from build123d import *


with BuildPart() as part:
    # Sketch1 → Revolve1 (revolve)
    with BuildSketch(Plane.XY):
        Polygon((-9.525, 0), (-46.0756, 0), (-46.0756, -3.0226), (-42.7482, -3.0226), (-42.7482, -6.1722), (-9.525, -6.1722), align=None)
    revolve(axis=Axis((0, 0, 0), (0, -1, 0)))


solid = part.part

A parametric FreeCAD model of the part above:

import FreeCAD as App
import Part
import Sketcher
from FreeCAD import Vector
Q = App.Units.Quantity

doc = App.newDocument("Part")
body = doc.addObject("PartDesign::Body", "Body")

sketch1 = body.newObject("Sketcher::SketchObject", "Sketch")
sketch1.AttachmentSupport = (doc.getObject("XY_Plane"), [""])
sketch1.MapMode = "FlatFace"
sketch1.addGeometry([
    Part.LineSegment(Vector(-9.5, 0, 0), Vector(-46.1, 0, 0)),
    Part.LineSegment(Vector(-46.1, 0, 0), Vector(-46.1, -3, 0)),
    Part.LineSegment(Vector(-46.1, -3, 0), Vector(-42.7, -3, 0)),
    Part.LineSegment(Vector(-42.7, -3, 0), Vector(-42.7, -6.2, 0)),
    Part.LineSegment(Vector(-42.7, -6.2, 0), Vector(-9.5, -6.2, 0)),
    Part.LineSegment(Vector(-9.5, -6.2, 0), Vector(-9.5, 0, 0)),
], False)
sketch1.addConstraint([
    Sketcher.Constraint("Coincident", 0, 2, 1, 1),
    Sketcher.Constraint("Coincident", 1, 2, 2, 1),
    Sketcher.Constraint("Coincident", 2, 2, 3, 1),
    Sketcher.Constraint("Coincident", 3, 2, 4, 1),
    Sketcher.Constraint("Coincident", 4, 2, 5, 1),
    Sketcher.Constraint("Coincident", 5, 2, 0, 1),
    Sketcher.Constraint("Horizontal", 0),
    Sketcher.Constraint("Vertical", 1),
    Sketcher.Constraint("Horizontal", 2),
    Sketcher.Constraint("Vertical", 3),
    Sketcher.Constraint("Horizontal", 4),
    Sketcher.Constraint("Vertical", 5),
    Sketcher.Constraint("PointOnObject", 0, 2, -1),
    Sketcher.Constraint("DistanceX", 0, 2, 0, 1, Q("1.439 in")),
    Sketcher.Constraint("DistanceX", 2, 1, 2, 2, Q("0.131 in")),
    Sketcher.Constraint("DistanceY", 1, 2, 1, 1, Q("0.119 in")),
    Sketcher.Constraint("DistanceY", 3, 2, 3, 1, Q("0.124 in")),
    Sketcher.Constraint("DistanceX", 0, 2, -1, 1, Q("1.814 in")),
])
revolution = body.newObject("PartDesign::Revolution", "Revolution")
revolution.Profile = sketch1
revolution.ReferenceAxis = (sketch1, ["V_Axis"])
revolution.Angle = 360

doc.recompute()
